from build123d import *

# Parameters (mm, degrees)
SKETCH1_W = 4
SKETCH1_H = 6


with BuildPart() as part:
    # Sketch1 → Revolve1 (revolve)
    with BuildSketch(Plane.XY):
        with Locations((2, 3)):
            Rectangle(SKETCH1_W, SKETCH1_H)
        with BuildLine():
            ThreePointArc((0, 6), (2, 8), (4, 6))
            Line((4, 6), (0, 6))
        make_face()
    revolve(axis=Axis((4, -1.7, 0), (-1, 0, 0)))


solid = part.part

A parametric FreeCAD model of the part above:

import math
import FreeCAD as App
import Part
import Sketcher

V = App.Vector

doc = App.newDocument("Part")
body = doc.addObject("PartDesign::Body", "Body")

sketch1 = body.newObject("Sketcher::SketchObject", "Sketch")
sketch1.AttachmentSupport = (doc.getObject("XY_Plane"), [""])
sketch1.MapMode = "FlatFace"
sketch1.addGeometry([
    Part.LineSegment(V(0, 6, 0), V(0, 0, 0)),
    Part.LineSegment(V(0, 0, 0), V(4, 0, 0)),
    Part.LineSegment(V(4, 0, 0), V(4, 6, 0)),
    Part.ArcOfCircle(Part.Circle(V(2, 6, 0), V(0, 0, 1), 2), math.radians(0), math.radians(180)),
], False)
sketch1.addGeometry(Part.LineSegment(V(4, -1.7, 0), V(0, -1.7, 0)), True)
sketch1.addConstraint([
    Sketcher.Constraint("Coincident", 0, 2, 1, 1),
    Sketcher.Constraint("Coincident", 1, 2, 2, 1),
    Sketcher.Constraint("Tangent", 2, 2, 3, 1),
    Sketcher.Constraint("Tangent", 3, 2, 0, 1),
    Sketcher.Constraint("Vertical", 0),
    Sketcher.Constraint("Horizontal", 1),
    Sketcher.Constraint("Vertical", 2),
    Sketcher.Constraint("Horizontal", 4),
    Sketcher.Constraint("Coincident", 0, 2, -1, 1),
    Sketcher.Constraint("PointOnObject", 4, 2, -2),
    Sketcher.Constraint("Vertical", 2, 2, 4, 1),
    Sketcher.Constraint("Radius", 3, 2.0),
    Sketcher.Constraint("DistanceY", 0, 2, 0, 1, 6.0),
    Sketcher.Constraint("DistanceY", 4, 1, -1, 1, 1.7),
])
revolution = body.newObject("PartDesign::Revolution", "Revolution")
revolution.Profile = sketch1
revolution.ReferenceAxis = (sketch1, ["Axis0"])
revolution.Angle = 360

doc.recompute()
